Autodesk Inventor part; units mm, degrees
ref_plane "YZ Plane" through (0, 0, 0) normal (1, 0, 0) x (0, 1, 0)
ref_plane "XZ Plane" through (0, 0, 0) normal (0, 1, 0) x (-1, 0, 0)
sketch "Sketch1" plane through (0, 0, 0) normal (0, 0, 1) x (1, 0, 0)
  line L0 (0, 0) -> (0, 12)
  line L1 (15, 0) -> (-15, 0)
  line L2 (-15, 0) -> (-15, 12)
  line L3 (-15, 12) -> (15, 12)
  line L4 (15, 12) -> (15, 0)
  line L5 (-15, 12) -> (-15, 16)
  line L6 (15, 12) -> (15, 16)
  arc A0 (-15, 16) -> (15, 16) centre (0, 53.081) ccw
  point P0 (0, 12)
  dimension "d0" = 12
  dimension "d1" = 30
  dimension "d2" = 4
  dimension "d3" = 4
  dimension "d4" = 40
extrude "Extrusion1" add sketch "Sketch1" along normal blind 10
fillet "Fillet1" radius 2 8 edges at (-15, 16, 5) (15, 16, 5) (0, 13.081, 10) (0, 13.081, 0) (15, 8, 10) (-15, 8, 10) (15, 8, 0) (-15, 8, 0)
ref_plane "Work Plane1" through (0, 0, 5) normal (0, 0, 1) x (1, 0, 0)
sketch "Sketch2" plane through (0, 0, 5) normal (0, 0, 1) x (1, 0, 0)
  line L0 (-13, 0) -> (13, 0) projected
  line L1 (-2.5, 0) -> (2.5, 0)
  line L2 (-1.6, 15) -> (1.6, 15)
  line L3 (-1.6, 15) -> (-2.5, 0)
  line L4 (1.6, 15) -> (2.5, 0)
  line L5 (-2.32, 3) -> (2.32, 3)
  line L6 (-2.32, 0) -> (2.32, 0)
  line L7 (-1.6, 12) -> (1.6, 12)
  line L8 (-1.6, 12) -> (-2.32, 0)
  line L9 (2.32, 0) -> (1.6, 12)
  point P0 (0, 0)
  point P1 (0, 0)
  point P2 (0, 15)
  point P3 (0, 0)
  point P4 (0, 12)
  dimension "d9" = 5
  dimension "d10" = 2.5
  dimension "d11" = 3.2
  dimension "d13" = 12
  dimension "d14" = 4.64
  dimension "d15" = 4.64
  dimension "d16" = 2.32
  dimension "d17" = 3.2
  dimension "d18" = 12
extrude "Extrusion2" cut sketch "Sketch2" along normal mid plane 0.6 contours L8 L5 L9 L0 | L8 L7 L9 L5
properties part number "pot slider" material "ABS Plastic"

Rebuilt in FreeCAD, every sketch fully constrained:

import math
import FreeCAD as App
import Part
import Sketcher


def edges_at(feature, points):
    """Names of the edges that pass closest to the given points."""
    edges = feature.Shape.Edges
    near = lambda p: min(range(len(edges)), key=lambda i: edges[i].distToShape(Part.Vertex(*p))[0])
    return sorted({f"Edge{near(p) + 1}" for p in points})


def add_polygon(sketch, points):
    """Adds a closed chain of lines whose ends are joined by coincident constraints."""
    first, n = sketch.GeometryCount, len(points)
    for a, b in zip(points, points[1:] + points[:1]):
        sketch.addGeometry(Part.LineSegment(App.Vector(*a, 0), App.Vector(*b, 0)), False)
    for i in range(n):
        sketch.addConstraint(Sketcher.Constraint("Coincident", first + i, 2, first + (i + 1) % n, 1))

doc = App.newDocument("Part")
params = doc.addObject("Spreadsheet::Sheet", "Params")
for row, (alias, value) in enumerate([
    ("sketch1_radius", "40 mm"),
    ("sketch1_width", "30 mm"),
    ("sketch1_height", "16 mm"),
    ("pad1_length", "10 mm"),
    ("fillet_radius", "2 mm"),
    ("sketch2_width", "3.2 mm"),
    ("sketch2_width2", "4.64 mm"),
    ("pocket1_length", "0.6 mm"),
], start=1):
    params.set(f"A{row}", alias)
    params.set(f"B{row}", "=" + value)
    params.setAlias(f"B{row}", alias)

body = doc.addObject("PartDesign::Body", "Body")

# Sketch on XY plane
sketch1 = body.newObject("Sketcher::SketchObject", "Sketch")
sketch1.AttachmentSupport = (doc.getObject("XY_Plane"), [""])
sketch1.MapMode = "FlatFace"
sketch1.addGeometry([
    Part.LineSegment(App.Vector(-15, 0, 0), App.Vector(15, 0, 0)),
    Part.LineSegment(App.Vector(15, 0, 0), App.Vector(15, 16, 0)),
    Part.ArcOfCircle(Part.Circle(App.Vector(0, 53, 0), App.Vector(0, 0, 1), 40), math.radians(-112), math.radians(-68)),
    Part.LineSegment(App.Vector(-15, 16, 0), App.Vector(-15, 0, 0)),
], False)
sketch1.addConstraint([
    Sketcher.Constraint("Coincident", 0, 2, 1, 1),
    Sketcher.Constraint("Coincident", 1, 2, 2, 2),
    Sketcher.Constraint("Coincident", 2, 1, 3, 1),
    Sketcher.Constraint("Coincident", 3, 2, 0, 1),
    Sketcher.Constraint("Horizontal", 0),
    Sketcher.Constraint("Vertical", 1),
    Sketcher.Constraint("Vertical", 3),
    Sketcher.Constraint("Symmetric", 0, 2, 3, 2, -1, 1),
    Sketcher.Constraint("PointOnObject", 2, 3, -2),
    Sketcher.Constraint("Radius", 2, 40.0),
    Sketcher.Constraint("DistanceX", 0, 1, 0, 2, 30.0),
    Sketcher.Constraint("DistanceY", 1, 1, 1, 2, 16.0),
])
sketch1.setExpression("Constraints[9]", "Params.sketch1_radius")
sketch1.setExpression("Constraints[10]", "Params.sketch1_width")
sketch1.setExpression("Constraints[11]", "Params.sketch1_height")
pad1 = body.newObject("PartDesign::Pad", "Pad")
pad1.Profile = sketch1
pad1.setExpression("Length", "Params.pad1_length")
doc.recompute()

fillet = body.newObject("PartDesign::Fillet", "Fillet")
fillet.Base = (pad1, edges_at(pad1, [
    (-15, 16, 5),
    (15, 16, 5),
    (0, 13.081, 10),
    (0, 13.081, 0),
    (15, 8, 10),
    (-15, 8, 10),
    (15, 8, 0),
    (-15, 8, 0),
]))
fillet.setExpression("Radius", "Params.fillet_radius")

# Sketch on XY plane
sketch2 = body.newObject("Sketcher::SketchObject", "Sketch001")
sketch2.AttachmentSupport = (doc.getObject("XY_Plane"), [""])
sketch2.MapMode = "FlatFace"
sketch2.AttachmentOffset = App.Placement(App.Vector(0, 0, 5), App.Rotation())
add_polygon(sketch2, [(-2.3, 0), (2.3, 0), (1.6, 12), (-1.6, 12)])  # lines 0-3
sketch2.addConstraint([
    Sketcher.Constraint("Horizontal", 0),
    Sketcher.Constraint("Horizontal", 2),
    Sketcher.Constraint("Symmetric", 0, 2, 3, 2, -1, 1),
    Sketcher.Constraint("Equal", 1, 3),
    Sketcher.Constraint("DistanceX", 2, 2, 2, 1, 3.2),
    Sketcher.Constraint("DistanceY", -1, 1, 1, 2, 12.0),
    Sketcher.Constraint("DistanceX", 0, 1, 0, 2, 4.64),
])
sketch2.setExpression("Constraints[8]", "Params.sketch2_width")
sketch2.setExpression("Constraints[10]", "Params.sketch2_width2")
pocket1 = body.newObject("PartDesign::Pocket", "Pocket")
pocket1.Profile = sketch2
pocket1.setExpression("Length", "Params.pocket1_length")
pocket1.Midplane = True

doc.recompute()
